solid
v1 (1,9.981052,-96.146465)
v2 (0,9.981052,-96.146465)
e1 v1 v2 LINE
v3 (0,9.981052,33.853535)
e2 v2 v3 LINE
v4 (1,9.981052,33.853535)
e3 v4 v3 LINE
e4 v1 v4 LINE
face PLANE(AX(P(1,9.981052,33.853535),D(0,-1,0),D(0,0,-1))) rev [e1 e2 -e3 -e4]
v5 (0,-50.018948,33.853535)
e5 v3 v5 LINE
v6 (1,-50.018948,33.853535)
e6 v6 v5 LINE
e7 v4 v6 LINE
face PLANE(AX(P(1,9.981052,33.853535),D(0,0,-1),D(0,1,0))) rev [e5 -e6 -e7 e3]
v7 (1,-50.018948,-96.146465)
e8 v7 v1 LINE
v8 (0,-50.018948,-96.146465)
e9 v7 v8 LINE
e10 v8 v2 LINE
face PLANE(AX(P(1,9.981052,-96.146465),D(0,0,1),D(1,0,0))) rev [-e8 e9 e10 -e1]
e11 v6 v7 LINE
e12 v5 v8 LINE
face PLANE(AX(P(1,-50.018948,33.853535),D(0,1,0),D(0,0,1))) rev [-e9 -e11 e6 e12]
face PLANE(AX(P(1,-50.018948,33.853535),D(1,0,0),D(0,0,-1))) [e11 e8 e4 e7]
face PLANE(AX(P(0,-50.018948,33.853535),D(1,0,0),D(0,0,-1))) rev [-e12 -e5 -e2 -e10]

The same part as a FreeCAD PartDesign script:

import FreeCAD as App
import Part
import Sketcher

V = App.Vector
Q = App.Units.Quantity

doc = App.newDocument("Part")
body = doc.addObject("PartDesign::Body", "Body")

sketch1 = body.newObject("Sketcher::SketchObject", "Sketch")
sketch1.AttachmentSupport = (doc.getObject("YZ_Plane"), [""])
sketch1.MapMode = "FlatFace"
sketch1.addGeometry(Part.LineSegment(V(10, 34, 0), V(-50, 34, 0)), False)
sketch1.addGeometry(Part.LineSegment(V(-50, 34, 0), V(-50, -96, 0)), False)
sketch1.addGeometry(Part.LineSegment(V(-50, -96, 0), V(10, -96, 0)), False)
sketch1.addGeometry(Part.LineSegment(V(10, -96, 0), V(10, 34, 0)), False)
sketch1.addConstraint(Sketcher.Constraint("Coincident", 0, 2, 1, 1))
sketch1.addConstraint(Sketcher.Constraint("Coincident", 1, 2, 2, 1))
sketch1.addConstraint(Sketcher.Constraint("Coincident", 2, 2, 3, 1))
sketch1.addConstraint(Sketcher.Constraint("Coincident", 3, 2, 0, 1))
sketch1.addConstraint(Sketcher.Constraint("Horizontal", 0))
sketch1.addConstraint(Sketcher.Constraint("Vertical", 1))
sketch1.addConstraint(Sketcher.Constraint("Horizontal", 2))
sketch1.addConstraint(Sketcher.Constraint("Vertical", 3))
sketch1.addConstraint(Sketcher.Constraint("DistanceX", 0, 2, 0, 1, Q("60 mm")))
sketch1.addConstraint(Sketcher.Constraint("DistanceY", 1, 2, 1, 1, Q("130 mm")))
sketch1.addConstraint(Sketcher.Constraint("DistanceX", 0, 2, -1, 1, Q("50.018948 mm")))
sketch1.addConstraint(Sketcher.Constraint("DistanceY", -1, 1, 0, 2, Q("33.853535 mm")))
pad1 = body.newObject("PartDesign::Pad", "Pad")
pad1.Profile = sketch1
pad1.Length = 1

doc.recompute()
